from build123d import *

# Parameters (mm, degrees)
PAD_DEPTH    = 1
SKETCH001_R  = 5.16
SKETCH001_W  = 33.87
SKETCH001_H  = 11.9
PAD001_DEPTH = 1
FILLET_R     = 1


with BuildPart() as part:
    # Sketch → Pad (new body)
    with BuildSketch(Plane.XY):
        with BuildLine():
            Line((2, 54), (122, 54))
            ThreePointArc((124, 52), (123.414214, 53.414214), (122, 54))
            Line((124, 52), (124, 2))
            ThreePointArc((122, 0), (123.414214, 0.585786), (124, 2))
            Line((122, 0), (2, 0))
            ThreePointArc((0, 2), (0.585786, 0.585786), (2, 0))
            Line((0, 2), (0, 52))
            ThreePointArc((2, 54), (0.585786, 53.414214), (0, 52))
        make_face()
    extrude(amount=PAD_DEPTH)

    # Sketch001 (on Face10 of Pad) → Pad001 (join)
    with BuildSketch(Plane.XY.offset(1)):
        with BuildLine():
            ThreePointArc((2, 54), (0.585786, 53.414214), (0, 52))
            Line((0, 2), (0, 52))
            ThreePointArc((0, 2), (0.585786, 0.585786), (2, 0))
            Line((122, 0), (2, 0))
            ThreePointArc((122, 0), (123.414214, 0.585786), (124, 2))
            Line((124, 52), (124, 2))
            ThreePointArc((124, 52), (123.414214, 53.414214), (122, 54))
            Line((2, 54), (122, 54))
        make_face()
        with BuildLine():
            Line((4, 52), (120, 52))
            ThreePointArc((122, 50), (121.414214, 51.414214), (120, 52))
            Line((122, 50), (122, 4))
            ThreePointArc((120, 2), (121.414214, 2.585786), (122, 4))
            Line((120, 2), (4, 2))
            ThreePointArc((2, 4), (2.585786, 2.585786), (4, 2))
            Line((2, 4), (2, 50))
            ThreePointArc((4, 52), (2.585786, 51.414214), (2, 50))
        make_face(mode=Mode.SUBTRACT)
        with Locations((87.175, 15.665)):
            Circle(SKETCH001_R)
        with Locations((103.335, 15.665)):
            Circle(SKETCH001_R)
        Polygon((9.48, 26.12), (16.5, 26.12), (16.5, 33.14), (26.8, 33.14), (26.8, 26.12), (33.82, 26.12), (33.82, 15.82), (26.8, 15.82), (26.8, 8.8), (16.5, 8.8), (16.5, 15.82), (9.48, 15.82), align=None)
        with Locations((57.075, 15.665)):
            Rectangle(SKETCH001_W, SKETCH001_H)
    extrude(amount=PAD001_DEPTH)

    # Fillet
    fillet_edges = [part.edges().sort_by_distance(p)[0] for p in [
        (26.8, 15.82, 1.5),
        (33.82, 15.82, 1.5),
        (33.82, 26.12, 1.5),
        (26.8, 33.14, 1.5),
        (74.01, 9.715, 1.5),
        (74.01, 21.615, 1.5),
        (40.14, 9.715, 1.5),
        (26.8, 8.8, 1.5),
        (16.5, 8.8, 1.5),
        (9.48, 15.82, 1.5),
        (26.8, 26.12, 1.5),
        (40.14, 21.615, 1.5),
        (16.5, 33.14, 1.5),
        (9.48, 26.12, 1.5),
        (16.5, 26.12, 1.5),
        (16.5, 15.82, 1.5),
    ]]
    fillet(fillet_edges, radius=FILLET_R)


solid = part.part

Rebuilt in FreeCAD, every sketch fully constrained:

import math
import FreeCAD as App
import Part
import Sketcher

V = App.Vector
Q = App.Units.Quantity


def edges_at(feature, points):
    """Names of the edges that pass closest to the given points."""
    edges = feature.Shape.Edges
    near = lambda p: min(range(len(edges)), key=lambda i: edges[i].distToShape(Part.Vertex(*p))[0])
    return sorted({f"Edge{near(p) + 1}" for p in points})

doc = App.newDocument("Part")
body = doc.addObject("PartDesign::Body", "Body")

sketch1 = body.newObject("Sketcher::SketchObject", "Sketch")
sketch1.AttachmentSupport = (doc.getObject("XY_Plane"), [""])
sketch1.MapMode = "FlatFace"
sketch1.addGeometry(Part.LineSegment(V(122, 54, 0), V(2, 54, 0)), False)
sketch1.addGeometry(Part.ArcOfCircle(Part.Circle(V(2, 52, 0), V(0, 0, 1), 2), math.radians(90), math.radians(180)), False)
sketch1.addGeometry(Part.LineSegment(V(0, 52, 0), V(0, 2, 0)), False)
sketch1.addGeometry(Part.ArcOfCircle(Part.Circle(V(2, 2, 0), V(0, 0, 1), 2), math.radians(180), math.radians(270)), False)
sketch1.addGeometry(Part.LineSegment(V(2, 0, 0), V(122, 0, 0)), False)
sketch1.addGeometry(Part.ArcOfCircle(Part.Circle(V(122, 2, 0), V(0, 0, 1), 2), math.radians(-90), math.radians(0)), False)
sketch1.addGeometry(Part.LineSegment(V(124, 2, 0), V(124, 52, 0)), False)
sketch1.addGeometry(Part.ArcOfCircle(Part.Circle(V(122, 52, 0), V(0, 0, 1), 2), math.radians(0), math.radians(90)), False)
sketch1.addConstraint(Sketcher.Constraint("Tangent", 0, 2, 1, 1))
sketch1.addConstraint(Sketcher.Constraint("Tangent", 1, 2, 2, 1))
sketch1.addConstraint(Sketcher.Constraint("Tangent", 2, 2, 3, 1))
sketch1.addConstraint(Sketcher.Constraint("Tangent", 3, 2, 4, 1))
sketch1.addConstraint(Sketcher.Constraint("Tangent", 4, 2, 5, 1))
sketch1.addConstraint(Sketcher.Constraint("Tangent", 5, 2, 6, 1))
sketch1.addConstraint(Sketcher.Constraint("Tangent", 6, 2, 7, 1))
sketch1.addConstraint(Sketcher.Constraint("Tangent", 7, 2, 0, 1))
sketch1.addConstraint(Sketcher.Constraint("Horizontal", 0))
sketch1.addConstraint(Sketcher.Constraint("Vertical", 2))
sketch1.addConstraint(Sketcher.Constraint("Horizontal", 4))
sketch1.addConstraint(Sketcher.Constraint("Vertical", 6))
sketch1.addConstraint(Sketcher.Constraint("Equal", 1, 3))
sketch1.addConstraint(Sketcher.Constraint("Equal", 3, 5))
sketch1.addConstraint(Sketcher.Constraint("Equal", 5, 7))
sketch1.addConstraint(Sketcher.Constraint("PointOnObject", 1, 2, -2))
sketch1.addConstraint(Sketcher.Constraint("PointOnObject", 3, 2, -1))
sketch1.addConstraint(Sketcher.Constraint("Radius", 1, Q("1.999999 mm")))
sketch1.addConstraint(Sketcher.Constraint("DistanceX", 0, 2, 0, 1, Q("120 mm")))
sketch1.addConstraint(Sketcher.Constraint("DistanceY", 2, 2, 2, 1, Q("50 mm")))
pad1 = body.newObject("PartDesign::Pad", "Pad")
pad1.Profile = sketch1
pad1.Length = 1

sketch2 = body.newObject("Sketcher::SketchObject", "Sketch001")
sketch2.AttachmentSupport = (doc.getObject("XY_Plane"), [""])
sketch2.MapMode = "FlatFace"
sketch2.AttachmentOffset = App.Placement(V(0, 0, 1), App.Rotation())
sketch2.addGeometry(Part.ArcOfCircle(Part.Circle(V(2, 52, 0), V(0, 0, 1), 2), math.radians(90), math.radians(180)), False)
sketch2.addGeometry(Part.LineSegment(V(0, 52, 0), V(0, 2, 0)), False)
sketch2.addGeometry(Part.ArcOfCircle(Part.Circle(V(2, 2, 0), V(0, 0, 1), 2), math.radians(180), math.radians(270)), False)
sketch2.addGeometry(Part.LineSegment(V(2, 0, 0), V(122, 0, 0)), False)
sketch2.addGeometry(Part.ArcOfCircle(Part.Circle(V(122, 2, 0), V(0, 0, 1), 2), math.radians(-90), math.radians(0)), False)
sketch2.addGeometry(Part.LineSegment(V(124, 2, 0), V(124, 52, 0)), False)
sketch2.addGeometry(Part.ArcOfCircle(Part.Circle(V(122, 52, 0), V(0, 0, 1), 2), math.radians(0), math.radians(90)), False)
sketch2.addGeometry(Part.LineSegment(V(122, 54, 0), V(2, 54, 0)), False)
sketch2.addGeometry(Part.ArcOfCircle(Part.Circle(V(4, 50, 0), V(0, 0, 1), 2), math.radians(90), math.radians(180)), False)
sketch2.addGeometry(Part.LineSegment(V(4, 52, 0), V(120, 52, 0)), False)
sketch2.addGeometry(Part.ArcOfCircle(Part.Circle(V(120, 50, 0), V(0, 0, 1), 2), math.radians(0), math.radians(90)), False)
sketch2.addGeometry(Part.LineSegment(V(122, 50, 0), V(122, 4, 0)), False)
sketch2.addGeometry(Part.ArcOfCircle(Part.Circle(V(120, 4, 0), V(0, 0, 1), 2), math.radians(-90), math.radians(0)), False)
sketch2.addGeometry(Part.LineSegment(V(120, 2, 0), V(4, 2, 0)), False)
sketch2.addGeometry(Part.ArcOfCircle(Part.Circle(V(4, 4, 0), V(0, 0, 1), 2), math.radians(180), math.radians(270)), False)
sketch2.addGeometry(Part.LineSegment(V(2, 4, 0), V(2, 50, 0)), False)
sketch2.addGeometry(Part.Circle(V(87.2, 15.7, 0), V(0, 0, 1), 5.2), False)
sketch2.addGeometry(Part.Circle(V(103.3, 15.7, 0), V(0, 0, 1), 5.2), False)
sketch2.addGeometry(Part.LineSegment(V(16.5, 26.1, 0), V(9.5, 26.1, 0)), False)
sketch2.addGeometry(Part.LineSegment(V(9.5, 26.1, 0), V(9.5, 15.8, 0)), False)
sketch2.addGeometry(Part.LineSegment(V(9.5, 15.8, 0), V(16.5, 15.8, 0)), False)
sketch2.addGeometry(Part.LineSegment(V(16.5, 15.8, 0), V(16.5, 8.8, 0)), False)
sketch2.addGeometry(Part.LineSegment(V(16.5, 8.8, 0), V(26.8, 8.8, 0)), False)
sketch2.addGeometry(Part.LineSegment(V(26.8, 8.8, 0), V(26.8, 15.8, 0)), False)
sketch2.addGeometry(Part.LineSegment(V(26.8, 15.8, 0), V(33.8, 15.8, 0)), False)
sketch2.addGeometry(Part.LineSegment(V(33.8, 15.8, 0), V(33.8, 26.1, 0)), False)
sketch2.addGeometry(Part.LineSegment(V(33.8, 26.1, 0), V(26.8, 26.1, 0)), False)
sketch2.addGeometry(Part.LineSegment(V(26.8, 26.1, 0), V(26.8, 33.1, 0)), False)
sketch2.addGeometry(Part.LineSegment(V(26.8, 33.1, 0), V(16.5, 33.1, 0)), False)
sketch2.addGeometry(Part.LineSegment(V(16.5, 33.1, 0), V(16.5, 26.1, 0)), False)
sketch2.addGeometry(Part.LineSegment(V(40.1, 21.6, 0), V(40.1, 9.7, 0)), False)
sketch2.addGeometry(Part.LineSegment(V(40.1, 9.7, 0), V(74, 9.7, 0)), False)
sketch2.addGeometry(Part.LineSegment(V(74, 9.7, 0), V(74, 21.6, 0)), False)
sketch2.addGeometry(Part.LineSegment(V(74, 21.6, 0), V(40.1, 21.6, 0)), False)
sketch2.addConstraint(Sketcher.Constraint("Tangent", 0, 2, 1, 1))
sketch2.addConstraint(Sketcher.Constraint("Tangent", 1, 2, 2, 1))
sketch2.addConstraint(Sketcher.Constraint("Tangent", 2, 2, 3, 1))
sketch2.addConstraint(Sketcher.Constraint("Tangent", 3, 2, 4, 1))
sketch2.addConstraint(Sketcher.Constraint("Tangent", 4, 2, 5, 1))
sketch2.addConstraint(Sketcher.Constraint("Tangent", 5, 2, 6, 1))
sketch2.addConstraint(Sketcher.Constraint("Tangent", 6, 2, 7, 1))
sketch2.addConstraint(Sketcher.Constraint("Tangent", 7, 2, 0, 1))
sketch2.addConstraint(Sketcher.Constraint("Tangent", 8, 1, 9, 1))
sketch2.addConstraint(Sketcher.Constraint("Tangent", 9, 2, 10, 2))
sketch2.addConstraint(Sketcher.Constraint("Tangent", 10, 1, 11, 1))
sketch2.addConstraint(Sketcher.Constraint("Tangent", 11, 2, 12, 2))
sketch2.addConstraint(Sketcher.Constraint("Tangent", 12, 1, 13, 1))
sketch2.addConstraint(Sketcher.Constraint("Tangent", 13, 2, 14, 2))
sketch2.addConstraint(Sketcher.Constraint("Tangent", 14, 1, 15, 1))
sketch2.addConstraint(Sketcher.Constraint("Tangent", 15, 2, 8, 2))
sketch2.addConstraint(Sketcher.Constraint("Coincident", 18, 2, 19, 1))
sketch2.addConstraint(Sketcher.Constraint("Coincident", 19, 2, 20, 1))
sketch2.addConstraint(Sketcher.Constraint("Coincident", 20, 2, 21, 1))
sketch2.addConstraint(Sketcher.Constraint("Coincident", 21, 2, 22, 1))
sketch2.addConstraint(Sketcher.Constraint("Coincident", 22, 2, 23, 1))
sketch2.addConstraint(Sketcher.Constraint("Coincident", 23, 2, 24, 1))
sketch2.addConstraint(Sketcher.Constraint("Coincident", 24, 2, 25, 1))
sketch2.addConstraint(Sketcher.Constraint("Coincident", 25, 2, 26, 1))
sketch2.addConstraint(Sketcher.Constraint("Coincident", 26, 2, 27, 1))
sketch2.addConstraint(Sketcher.Constraint("Coincident", 27, 2, 28, 1))
sketch2.addConstraint(Sketcher.Constraint("Coincident", 28, 2, 29, 1))
sketch2.addConstraint(Sketcher.Constraint("Coincident", 29, 2, 18, 1))
sketch2.addConstraint(Sketcher.Constraint("Coincident", 30, 2, 31, 1))
sketch2.addConstraint(Sketcher.Constraint("Coincident", 31, 2, 32, 1))
sketch2.addConstraint(Sketcher.Constraint("Coincident", 32, 2, 33, 1))
sketch2.addConstraint(Sketcher.Constraint("Coincident", 33, 2, 30, 1))
sketch2.addConstraint(Sketcher.Constraint("Vertical", 1))
sketch2.addConstraint(Sketcher.Constraint("Horizontal", 3))
sketch2.addConstraint(Sketcher.Constraint("Vertical", 5))
sketch2.addConstraint(Sketcher.Constraint("Horizontal", 7))
sketch2.addConstraint(Sketcher.Constraint("Horizontal", 9))
sketch2.addConstraint(Sketcher.Constraint("Vertical", 11))
sketch2.addConstraint(Sketcher.Constraint("Horizontal", 13))
sketch2.addConstraint(Sketcher.Constraint("Vertical", 15))
sketch2.addConstraint(Sketcher.Constraint("Horizontal", 18))
sketch2.addConstraint(Sketcher.Constraint("Vertical", 19))
sketch2.addConstraint(Sketcher.Constraint("Horizontal", 20))
sketch2.addConstraint(Sketcher.Constraint("Vertical", 21))
sketch2.addConstraint(Sketcher.Constraint("Horizontal", 22))
sketch2.addConstraint(Sketcher.Constraint("Vertical", 23))
sketch2.addConstraint(Sketcher.Constraint("Horizontal", 24))
sketch2.addConstraint(Sketcher.Constraint("Vertical", 25))
sketch2.addConstraint(Sketcher.Constraint("Horizontal", 26))
sketch2.addConstraint(Sketcher.Constraint("Vertical", 27))
sketch2.addConstraint(Sketcher.Constraint("Horizontal", 28))
sketch2.addConstraint(Sketcher.Constraint("Vertical", 29))
sketch2.addConstraint(Sketcher.Constraint("Vertical", 30))
sketch2.addConstraint(Sketcher.Constraint("Horizontal", 31))
sketch2.addConstraint(Sketcher.Constraint("Vertical", 32))
sketch2.addConstraint(Sketcher.Constraint("Horizontal", 33))
sketch2.addConstraint(Sketcher.Constraint("Equal", 0, 2))
sketch2.addConstraint(Sketcher.Constraint("Equal", 2, 4))
sketch2.addConstraint(Sketcher.Constraint("Equal", 4, 6))
sketch2.addConstraint(Sketcher.Constraint("Equal", 6, 8))
sketch2.addConstraint(Sketcher.Constraint("Equal", 8, 10))
sketch2.addConstraint(Sketcher.Constraint("Equal", 10, 12))
sketch2.addConstraint(Sketcher.Constraint("Equal", 12, 14))
sketch2.addConstraint(Sketcher.Constraint("Equal", 16, 17))
sketch2.addConstraint(Sketcher.Constraint("PointOnObject", 0, 2, -2))
sketch2.addConstraint(Sketcher.Constraint("PointOnObject", 2, 2, -1))
sketch2.addConstraint(Sketcher.Constraint("Horizontal", 16, 3, 17, 3))
sketch2.addConstraint(Sketcher.Constraint("Horizontal", 5, 2, 8, 1))
sketch2.addConstraint(Sketcher.Constraint("Horizontal", 4, 2, 12, 1))
sketch2.addConstraint(Sketcher.Constraint("Horizontal", 20, 2, 23, 2))
sketch2.addConstraint(Sketcher.Constraint("Horizontal", 18, 2, 25, 2))
sketch2.addConstraint(Sketcher.Constraint("Vertical", 6, 2, 10, 1))
sketch2.addConstraint(Sketcher.Constraint("Vertical", 7, 2, 14, 1))
sketch2.addConstraint(Sketcher.Constraint("Vertical", 23, 2, 26, 2))
sketch2.addConstraint(Sketcher.Constraint("Vertical", 21, 2, 28, 2))
sketch2.addConstraint(Sketcher.Constraint("Equal", 20, 24))
sketch2.addConstraint(Sketcher.Constraint("Equal", 28, 19))
sketch2.addConstraint(Sketcher.Constraint("Equal", 26, 21))
sketch2.addConstraint(Sketcher.Constraint("Equal", 23, 27))
sketch2.addConstraint(Sketcher.Constraint("Radius", 0, Q("1.999999 mm")))
sketch2.addConstraint(Sketcher.Constraint("Diameter", 16, Q("10.32 mm")))
sketch2.addConstraint(Sketcher.Constraint("DistanceX", 3, 1, 3, 2, Q("120 mm")))
sketch2.addConstraint(Sketcher.Constraint("DistanceY", 1, 2, 1, 1, Q("50 mm")))
sketch2.addConstraint(Sketcher.Constraint("DistanceX", 22, 1, 22, 2, Q("10.3 mm")))
sketch2.addConstraint(Sketcher.Constraint("DistanceY", 30, 2, 30, 1, Q("11.9 mm")))
sketch2.addConstraint(Sketcher.Constraint("DistanceX", 18, 2, 18, 1, Q("7.02 mm")))
sketch2.addConstraint(Sketcher.Constraint("DistanceX", 31, 1, 31, 2, Q("33.87 mm")))
sketch2.addConstraint(Sketcher.Constraint("DistanceX", -1, 1, 20, 2, Q("16.5 mm")))
sketch2.addConstraint(Sketcher.Constraint("DistanceY", -1, 1, 21, 2, Q("8.8 mm")))
sketch2.addConstraint(Sketcher.Constraint("DistanceX", -1, 1, 30, 2, Q("40.14 mm")))
sketch2.addConstraint(Sketcher.Constraint("DistanceX", 16, 3, 17, 3, Q("16.16 mm")))
sketch2.addConstraint(Sketcher.Constraint("DistanceY", 31, 2, 16, 3, Q("5.95 mm")))
sketch2.addConstraint(Sketcher.Constraint("DistanceX", -1, 1, 16, 3, Q("87.175 mm")))
sketch2.addConstraint(Sketcher.Constraint("DistanceY", -1, 1, 16, 3, Q("15.665 mm")))
pad2 = body.newObject("PartDesign::Pad", "Pad001")
pad2.Profile = sketch2
pad2.Length = 1
doc.recompute()

fillet = body.newObject("PartDesign::Fillet", "Fillet")
fillet.Base = (pad2, edges_at(pad2, [
    (26.8, 15.82, 1.5),
    (33.82, 15.82, 1.5),
    (33.82, 26.12, 1.5),
    (26.8, 33.14, 1.5),
    (74.01, 9.715, 1.5),
    (74.01, 21.615, 1.5),
    (40.14, 9.715, 1.5),
    (26.8, 8.8, 1.5),
    (16.5, 8.8, 1.5),
    (9.48, 15.82, 1.5),
    (26.8, 26.12, 1.5),
    (40.14, 21.615, 1.5),
    (16.5, 33.14, 1.5),
    (9.48, 26.12, 1.5),
    (16.5, 26.12, 1.5),
    (16.5, 15.82, 1.5),
]))
fillet.Radius = 1

doc.recompute()
